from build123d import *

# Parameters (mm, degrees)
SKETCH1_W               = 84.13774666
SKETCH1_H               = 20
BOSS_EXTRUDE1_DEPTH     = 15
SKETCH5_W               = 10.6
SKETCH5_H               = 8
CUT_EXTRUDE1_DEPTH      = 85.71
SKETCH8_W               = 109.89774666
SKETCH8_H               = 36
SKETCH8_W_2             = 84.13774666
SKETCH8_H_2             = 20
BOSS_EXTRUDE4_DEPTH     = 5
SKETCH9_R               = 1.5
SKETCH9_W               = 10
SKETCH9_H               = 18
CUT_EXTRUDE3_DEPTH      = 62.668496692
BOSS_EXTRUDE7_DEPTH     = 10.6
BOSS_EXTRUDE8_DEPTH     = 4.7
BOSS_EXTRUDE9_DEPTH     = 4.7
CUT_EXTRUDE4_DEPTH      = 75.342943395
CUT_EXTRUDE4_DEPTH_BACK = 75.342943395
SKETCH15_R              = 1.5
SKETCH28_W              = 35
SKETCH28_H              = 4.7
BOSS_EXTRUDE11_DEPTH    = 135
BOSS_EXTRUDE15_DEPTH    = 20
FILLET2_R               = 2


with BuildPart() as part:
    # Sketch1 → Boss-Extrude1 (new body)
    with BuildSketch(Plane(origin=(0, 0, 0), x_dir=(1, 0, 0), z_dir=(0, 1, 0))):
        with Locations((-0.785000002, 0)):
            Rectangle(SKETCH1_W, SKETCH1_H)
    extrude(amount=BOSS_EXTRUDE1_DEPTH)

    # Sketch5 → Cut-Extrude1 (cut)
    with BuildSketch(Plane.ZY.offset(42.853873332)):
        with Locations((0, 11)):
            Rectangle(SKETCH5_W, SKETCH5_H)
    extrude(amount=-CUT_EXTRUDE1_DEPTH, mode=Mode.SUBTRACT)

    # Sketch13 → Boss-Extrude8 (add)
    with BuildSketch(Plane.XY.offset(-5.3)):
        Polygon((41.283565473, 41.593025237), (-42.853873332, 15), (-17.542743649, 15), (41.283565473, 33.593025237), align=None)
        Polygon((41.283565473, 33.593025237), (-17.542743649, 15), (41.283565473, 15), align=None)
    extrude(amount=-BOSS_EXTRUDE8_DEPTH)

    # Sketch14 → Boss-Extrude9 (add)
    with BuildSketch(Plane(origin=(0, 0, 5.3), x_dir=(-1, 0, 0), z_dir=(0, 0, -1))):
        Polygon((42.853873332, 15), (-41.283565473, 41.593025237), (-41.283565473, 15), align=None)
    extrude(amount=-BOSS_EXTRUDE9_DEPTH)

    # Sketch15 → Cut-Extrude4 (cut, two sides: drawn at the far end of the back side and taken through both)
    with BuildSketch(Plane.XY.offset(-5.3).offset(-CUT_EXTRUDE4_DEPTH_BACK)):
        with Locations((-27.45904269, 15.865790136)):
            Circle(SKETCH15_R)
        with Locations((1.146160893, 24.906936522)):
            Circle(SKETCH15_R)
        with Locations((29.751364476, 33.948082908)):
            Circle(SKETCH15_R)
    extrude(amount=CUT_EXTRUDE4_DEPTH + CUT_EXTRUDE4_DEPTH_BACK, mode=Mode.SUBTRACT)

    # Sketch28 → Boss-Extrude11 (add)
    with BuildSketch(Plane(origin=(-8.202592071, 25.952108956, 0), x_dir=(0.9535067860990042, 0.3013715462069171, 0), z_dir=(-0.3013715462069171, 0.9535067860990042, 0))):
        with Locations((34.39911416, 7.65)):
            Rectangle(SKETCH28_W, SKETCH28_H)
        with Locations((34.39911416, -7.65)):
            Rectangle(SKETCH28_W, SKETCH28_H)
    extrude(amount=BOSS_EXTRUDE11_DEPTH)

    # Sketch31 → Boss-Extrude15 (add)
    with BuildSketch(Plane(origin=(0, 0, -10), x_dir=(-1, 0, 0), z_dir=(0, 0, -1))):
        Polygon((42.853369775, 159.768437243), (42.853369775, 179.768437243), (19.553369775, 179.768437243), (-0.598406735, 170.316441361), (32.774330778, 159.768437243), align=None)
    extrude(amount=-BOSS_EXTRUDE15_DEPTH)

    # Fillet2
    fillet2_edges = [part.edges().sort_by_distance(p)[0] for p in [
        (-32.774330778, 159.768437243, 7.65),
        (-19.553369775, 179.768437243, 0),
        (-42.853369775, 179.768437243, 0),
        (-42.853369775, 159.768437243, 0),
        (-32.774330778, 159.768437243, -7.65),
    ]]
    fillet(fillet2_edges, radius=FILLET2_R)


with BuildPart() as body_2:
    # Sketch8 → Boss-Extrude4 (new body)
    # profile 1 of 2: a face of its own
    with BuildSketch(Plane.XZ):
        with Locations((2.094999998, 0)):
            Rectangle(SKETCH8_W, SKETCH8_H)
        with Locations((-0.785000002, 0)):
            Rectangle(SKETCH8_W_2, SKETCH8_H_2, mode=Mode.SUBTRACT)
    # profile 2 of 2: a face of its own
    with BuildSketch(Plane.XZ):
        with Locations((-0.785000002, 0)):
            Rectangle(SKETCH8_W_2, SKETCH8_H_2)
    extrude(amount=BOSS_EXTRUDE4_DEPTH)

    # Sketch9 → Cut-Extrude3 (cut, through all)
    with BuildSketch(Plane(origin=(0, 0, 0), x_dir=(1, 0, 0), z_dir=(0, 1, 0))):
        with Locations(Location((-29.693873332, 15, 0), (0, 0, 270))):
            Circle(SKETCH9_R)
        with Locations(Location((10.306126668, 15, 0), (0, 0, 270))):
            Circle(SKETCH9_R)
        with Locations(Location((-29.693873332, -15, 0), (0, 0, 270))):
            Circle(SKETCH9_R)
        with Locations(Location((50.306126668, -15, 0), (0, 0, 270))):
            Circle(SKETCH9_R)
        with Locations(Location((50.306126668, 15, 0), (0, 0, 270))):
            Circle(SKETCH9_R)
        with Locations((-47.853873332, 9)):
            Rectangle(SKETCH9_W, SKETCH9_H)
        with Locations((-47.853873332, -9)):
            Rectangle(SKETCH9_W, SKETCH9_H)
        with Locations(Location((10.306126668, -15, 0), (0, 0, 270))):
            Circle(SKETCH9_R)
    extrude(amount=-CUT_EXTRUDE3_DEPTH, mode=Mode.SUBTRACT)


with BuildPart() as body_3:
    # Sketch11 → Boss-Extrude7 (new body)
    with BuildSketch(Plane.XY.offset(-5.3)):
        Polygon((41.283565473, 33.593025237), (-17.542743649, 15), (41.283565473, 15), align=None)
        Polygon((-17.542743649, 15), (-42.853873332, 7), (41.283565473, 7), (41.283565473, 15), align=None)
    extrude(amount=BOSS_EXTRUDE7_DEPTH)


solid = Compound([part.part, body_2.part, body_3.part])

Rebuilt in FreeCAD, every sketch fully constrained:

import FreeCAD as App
import Part
import Sketcher

V = App.Vector
Q = App.Units.Quantity


def edges_at(feature, points):
    """Names of the edges that pass closest to the given points."""
    edges = feature.Shape.Edges
    near = lambda p: min(range(len(edges)), key=lambda i: edges[i].distToShape(Part.Vertex(*p))[0])
    return sorted({f"Edge{near(p) + 1}" for p in points})

doc = App.newDocument("Part")
body = doc.addObject("PartDesign::Body", "Body")

# Sketch on XZ plane
sketch1 = body.newObject("Sketcher::SketchObject", "Sketch")
sketch1.AttachmentSupport = (doc.getObject("XZ_Plane"), [""])
sketch1.MapMode = "FlatFace"
sketch1.addGeometry([
    Part.LineSegment(V(-43, -10, 0), V(-43, 10, 0)),
    Part.LineSegment(V(-43, 10, 0), V(41, 10, 0)),
    Part.LineSegment(V(41, 10, 0), V(41, -10, 0)),
    Part.LineSegment(V(41, -10, 0), V(-43, -10, 0)),
], False)
sketch1.addConstraint([
    Sketcher.Constraint("Coincident", 0, 2, 1, 1),
    Sketcher.Constraint("Coincident", 1, 2, 2, 1),
    Sketcher.Constraint("Coincident", 2, 2, 3, 1),
    Sketcher.Constraint("Coincident", 3, 2, 0, 1),
    Sketcher.Constraint("Vertical", 0),
    Sketcher.Constraint("Horizontal", 1),
    Sketcher.Constraint("Vertical", 2),
    Sketcher.Constraint("Horizontal", 3),
    Sketcher.Constraint("DistanceY", 0, 1, 0, 2, Q("20 mm")),
    Sketcher.Constraint("DistanceY", -1, 1, 0, 2, Q("10 mm")),
    Sketcher.Constraint("DistanceX", 1, 1, 1, 2, Q("84.137747 mm")),
    Sketcher.Constraint("DistanceX", 0, 2, -1, 1, Q("42.853873 mm")),
])
pad1 = body.newObject("PartDesign::Pad", "Pad")
pad1.Profile = sketch1
pad1.Length = 15
pad1.Reversed = True

# Sketch on YZ plane
sketch2 = body.newObject("Sketcher::SketchObject", "Sketch001")
sketch2.AttachmentSupport = (doc.getObject("YZ_Plane"), [""])
sketch2.MapMode = "FlatFace"
sketch2.AttachmentOffset = App.Placement(V(0, 0, -42.853873), App.Rotation())
sketch2.addGeometry([
    Part.LineSegment(V(15, -5, 0), V(7, -5, 0)),
    Part.LineSegment(V(7, -5, 0), V(7, 5, 0)),
    Part.LineSegment(V(7, 5, 0), V(15, 5, 0)),
    Part.LineSegment(V(15, 5, 0), V(15, -5, 0)),
], False)
sketch2.addConstraint([
    Sketcher.Constraint("Coincident", 0, 2, 1, 1),
    Sketcher.Constraint("Coincident", 1, 2, 2, 1),
    Sketcher.Constraint("Coincident", 2, 2, 3, 1),
    Sketcher.Constraint("Coincident", 3, 2, 0, 1),
    Sketcher.Constraint("Horizontal", 0),
    Sketcher.Constraint("Vertical", 1),
    Sketcher.Constraint("Horizontal", 2),
    Sketcher.Constraint("Vertical", 3),
    Sketcher.Constraint("DistanceX", 0, 2, 0, 1, Q("8 mm")),
    Sketcher.Constraint("DistanceY", 1, 1, 1, 2, Q("10.6 mm")),
    Sketcher.Constraint("DistanceX", -1, 1, 0, 2, Q("7 mm")),
    Sketcher.Constraint("DistanceY", 0, 2, -1, 1, Q("5.3 mm")),
])
pocket1 = body.newObject("PartDesign::Pocket", "Pocket")
pocket1.Profile = sketch2
pocket1.Length = 85.71
pocket1.Reversed = True

# Sketch on XY plane
sketch3 = body.newObject("Sketcher::SketchObject", "Sketch002")
sketch3.AttachmentSupport = (doc.getObject("XY_Plane"), [""])
sketch3.MapMode = "FlatFace"
sketch3.AttachmentOffset = App.Placement(V(0, 0, -5.3), App.Rotation())
sketch3.addGeometry([
    Part.LineSegment(V(41, 42, 0), V(-43, 15, 0)),
    Part.LineSegment(V(-43, 15, 0), V(41, 15, 0)),
    Part.LineSegment(V(41, 15, 0), V(41, 42, 0)),
], False)
sketch3.addConstraint([
    Sketcher.Constraint("Coincident", 0, 2, 1, 1),
    Sketcher.Constraint("Coincident", 1, 2, 2, 1),
    Sketcher.Constraint("Coincident", 2, 2, 0, 1),
    Sketcher.Constraint("Horizontal", 1),
    Sketcher.Constraint("Vertical", 2),
    Sketcher.Constraint("DistanceY", -1, 1, 0, 2, Q("15 mm")),
    Sketcher.Constraint("Angle", 0, Q("-162.46 deg")),
    Sketcher.Constraint("Distance", 0, Q("88.24 mm")),
    Sketcher.Constraint("DistanceX", 0, 2, -1, 1, Q("42.853873 mm")),
])
pad2 = body.newObject("PartDesign::Pad", "Pad001")
pad2.Profile = sketch3
pad2.Length = 4.7
pad2.Reversed = True

# Sketch on XY plane
sketch4 = body.newObject("Sketcher::SketchObject", "Sketch003")
sketch4.AttachmentSupport = (doc.getObject("XY_Plane"), [""])
sketch4.MapMode = "FlatFace"
sketch4.AttachmentOffset = App.Placement(V(0, 0, 5.3), App.Rotation())
sketch4.addGeometry([
    Part.LineSegment(V(-43, 15, 0), V(41, 42, 0)),
    Part.LineSegment(V(41, 42, 0), V(41, 15, 0)),
    Part.LineSegment(V(41, 15, 0), V(-43, 15, 0)),
], False)
sketch4.addConstraint([
    Sketcher.Constraint("Coincident", 0, 2, 1, 1),
    Sketcher.Constraint("Coincident", 1, 2, 2, 1),
    Sketcher.Constraint("Coincident", 2, 2, 0, 1),
    Sketcher.Constraint("Vertical", 1),
    Sketcher.Constraint("Horizontal", 2),
    Sketcher.Constraint("DistanceY", -1, 1, 1, 2, Q("15 mm")),
    Sketcher.Constraint("Angle", 0, Q("17.54 deg")),
    Sketcher.Constraint("Distance", 0, Q("88.24 mm")),
    Sketcher.Constraint("DistanceX", -1, 1, 0, 2, Q("41.283565 mm")),
])
pad3 = body.newObject("PartDesign::Pad", "Pad002")
pad3.Profile = sketch4
pad3.Length = 4.7

# Sketch on XY plane
sketch5 = body.newObject("Sketcher::SketchObject", "Sketch004")
sketch5.AttachmentSupport = (doc.getObject("XY_Plane"), [""])
sketch5.MapMode = "FlatFace"
sketch5.AttachmentOffset = App.Placement(V(0, 0, -5.3), App.Rotation())
sketch5.addGeometry([
    Part.Circle(V(-27.5, 15.9, 0), V(0, 0, 1), 1.5),
    Part.Circle(V(1.1, 24.9, 0), V(0, 0, 1), 1.5),
    Part.Circle(V(29.8, 33.9, 0), V(0, 0, 1), 1.5),
], False)
sketch5.addConstraint([
    Sketcher.Constraint("Equal", 0, 1),
    Sketcher.Constraint("Equal", 1, 2),
    Sketcher.Constraint("Diameter", 0, Q("3 mm")),
    Sketcher.Constraint("DistanceY", -1, 1, 0, 3, Q("15.86579 mm")),
    Sketcher.Constraint("DistanceX", -1, 1, 1, 3, Q("1.146161 mm")),
    Sketcher.Constraint("DistanceX", 0, 3, -1, 1, Q("27.459043 mm")),
    Sketcher.Constraint("DistanceY", -1, 1, 1, 3, Q("24.906937 mm")),
    Sketcher.Constraint("DistanceX", -1, 1, 2, 3, Q("29.751364 mm")),
    Sketcher.Constraint("DistanceY", -1, 1, 2, 3, Q("33.948083 mm")),
])
pocket2 = body.newObject("PartDesign::Pocket", "Pocket001")
pocket2.Profile = sketch5
pocket2.Type = "ThroughAll"
pocket2.Midplane = True

# Sketch on an angled plane
sketch6 = body.newObject("Sketcher::SketchObject", "Sketch005")
sketch6.Placement = App.Placement(V(-8.202592, 25.952109, 0), App.Rotation(V(0.953506786, 0.301371546, 0), V(0, 0, -1), V(-0.301371546, 0.953506786, 0), "ZXY"))
sketch6.addGeometry([
    Part.LineSegment(V(16.9, 10, 0), V(16.9, 5.3, 0)),  # 0
    Part.LineSegment(V(16.9, 5.3, 0), V(51.9, 5.3, 0)),  # 1
    Part.LineSegment(V(51.9, 5.3, 0), V(51.9, 10, 0)),  # 2
    Part.LineSegment(V(51.9, 10, 0), V(16.9, 10, 0)),  # 3
    Part.LineSegment(V(16.9, -5.3, 0), V(16.9, -10, 0)),  # 4
    Part.LineSegment(V(16.9, -10, 0), V(51.9, -10, 0)),  # 5
    Part.LineSegment(V(51.9, -10, 0), V(51.9, -5.3, 0)),  # 6
    Part.LineSegment(V(51.9, -5.3, 0), V(16.9, -5.3, 0)),  # 7
], False)
sketch6.addConstraint([
    Sketcher.Constraint("Coincident", 0, 2, 1, 1),
    Sketcher.Constraint("Coincident", 1, 2, 2, 1),
    Sketcher.Constraint("Coincident", 2, 2, 3, 1),
    Sketcher.Constraint("Coincident", 3, 2, 0, 1),
    Sketcher.Constraint("Coincident", 4, 2, 5, 1),
    Sketcher.Constraint("Coincident", 5, 2, 6, 1),
    Sketcher.Constraint("Coincident", 6, 2, 7, 1),
    Sketcher.Constraint("Coincident", 7, 2, 4, 1),
    Sketcher.Constraint("Vertical", 0),
    Sketcher.Constraint("Horizontal", 1),
    Sketcher.Constraint("Vertical", 2),
    Sketcher.Constraint("Horizontal", 3),
    Sketcher.Constraint("Vertical", 4),
    Sketcher.Constraint("Horizontal", 5),
    Sketcher.Constraint("Vertical", 6),
    Sketcher.Constraint("Horizontal", 7),
    Sketcher.Constraint("Symmetric", 3, 2, 4, 2, -1),
    Sketcher.Constraint("Symmetric", 1, 2, 6, 2, -1),
    Sketcher.Constraint("DistanceX", 1, 1, 1, 2, Q("35 mm")),
    Sketcher.Constraint("DistanceY", 0, 2, 0, 1, Q("4.7 mm")),
    Sketcher.Constraint("DistanceY", -1, 1, 2, 2, Q("10 mm")),
    Sketcher.Constraint("DistanceX", -1, 1, 0, 2, Q("16.899114 mm")),
])
pad4 = body.newObject("PartDesign::Pad", "Pad003")
pad4.Profile = sketch6
pad4.Length = 135

# Sketch on XY plane
sketch7 = body.newObject("Sketcher::SketchObject", "Sketch006")
sketch7.AttachmentSupport = (doc.getObject("XY_Plane"), [""])
sketch7.MapMode = "FlatFace"
sketch7.AttachmentOffset = App.Placement(V(0, 0, -10), App.Rotation())
sketch7.addGeometry([
    Part.LineSegment(V(-43, 160, 0), V(-43, 180, 0)),  # 0
    Part.LineSegment(V(-43, 180, 0), V(-20, 180, 0)),  # 1
    Part.LineSegment(V(-20, 180, 0), V(1, 170, 0)),  # 2
    Part.LineSegment(V(1, 170, 0), V(-33, 160, 0)),  # 3
    Part.LineSegment(V(-33, 160, 0), V(-43, 160, 0)),  # 4
], False)
sketch7.addConstraint([
    Sketcher.Constraint("Coincident", 0, 2, 1, 1),
    Sketcher.Constraint("Coincident", 1, 2, 2, 1),
    Sketcher.Constraint("Coincident", 2, 2, 3, 1),
    Sketcher.Constraint("Coincident", 3, 2, 4, 1),
    Sketcher.Constraint("Coincident", 4, 2, 0, 1),
    Sketcher.Constraint("Vertical", 0),
    Sketcher.Constraint("Horizontal", 1),
    Sketcher.Constraint("Horizontal", 4),
    Sketcher.Constraint("DistanceY", 0, 1, 0, 2, Q("20 mm")),
    Sketcher.Constraint("Distance", 3, Q("35 mm")),
    Sketcher.Constraint("DistanceX", 1, 1, 1, 2, Q("23.3 mm")),
    Sketcher.Constraint("Angle", 3, Q("-162.46 deg")),
    Sketcher.Constraint("DistanceX", 4, 2, 4, 1, Q("10.079039 mm")),
    Sketcher.Constraint("DistanceX", 0, 2, -1, 1, Q("42.85337 mm")),
    Sketcher.Constraint("DistanceY", -1, 1, 2, 2, Q("170.316441 mm")),
])
pad5 = body.newObject("PartDesign::Pad", "Pad004")
pad5.Profile = sketch7
pad5.Length = 20
doc.recompute()

fillet = body.newObject("PartDesign::Fillet", "Fillet")
fillet.Base = (pad5, edges_at(pad5, [
    (-32.774, 159.768, 7.65),
    (-19.553, 179.768, 0),
    (-42.853, 179.768, 0),
    (-42.853, 159.768, 0),
    (-32.774, 159.768, -7.65),
]))
fillet.Radius = 2
body2 = doc.addObject("PartDesign::Body", "Body001")

# Sketch on XZ plane
sketch8 = body2.newObject("Sketcher::SketchObject", "Sketch007")
sketch8.AttachmentSupport = (doc.getObject("XZ_Plane001"), [""])
sketch8.MapMode = "FlatFace"
sketch8.addGeometry([
    Part.LineSegment(V(-53, 18, 0), V(-53, -18, 0)),
    Part.LineSegment(V(-53, -18, 0), V(57, -18, 0)),
    Part.LineSegment(V(57, -18, 0), V(57, 18, 0)),
    Part.LineSegment(V(57, 18, 0), V(-53, 18, 0)),
], False)
sketch8.addConstraint([
    Sketcher.Constraint("Coincident", 0, 2, 1, 1),
    Sketcher.Constraint("Coincident", 1, 2, 2, 1),
    Sketcher.Constraint("Coincident", 2, 2, 3, 1),
    Sketcher.Constraint("Coincident", 3, 2, 0, 1),
    Sketcher.Constraint("Vertical", 0),
    Sketcher.Constraint("Horizontal", 1),
    Sketcher.Constraint("Vertical", 2),
    Sketcher.Constraint("Horizontal", 3),
    Sketcher.Constraint("DistanceY", 0, 2, 0, 1, Q("36 mm")),
    Sketcher.Constraint("DistanceY", 0, 2, -1, 1, Q("18 mm")),
    Sketcher.Constraint("DistanceX", 1, 1, 1, 2, Q("109.897747 mm")),
    Sketcher.Constraint("DistanceX", 0, 2, -1, 1, Q("52.853873 mm")),
])
pad6 = body2.newObject("PartDesign::Pad", "Pad005")
pad6.Profile = sketch8
pad6.Length = 5

# Sketch on XZ plane
sketch9 = body2.newObject("Sketcher::SketchObject", "Sketch008")
sketch9.AttachmentSupport = (doc.getObject("XZ_Plane001"), [""])
sketch9.MapMode = "FlatFace"
sketch9.addGeometry([
    Part.Circle(V(-29.7, -15, 0), V(0, 0, 1), 1.5),  # 0
    Part.Circle(V(10.3, -15, 0), V(0, 0, 1), 1.5),  # 1
    Part.Circle(V(-29.7, 15, 0), V(0, 0, 1), 1.5),  # 2
    Part.Circle(V(50.3, 15, 0), V(0, 0, 1), 1.5),  # 3
    Part.Circle(V(50.3, -15, 0), V(0, 0, 1), 1.5),  # 4
    Part.LineSegment(V(-52.9, -18, 0), V(-52.9, 18, 0)),  # 5
    Part.LineSegment(V(-52.9, 18, 0), V(-42.9, 18, 0)),  # 6
    Part.LineSegment(V(-42.9, 18, 0), V(-42.9, -18, 0)),  # 7
    Part.LineSegment(V(-42.9, -18, 0), V(-52.9, -18, 0)),  # 8
    Part.Circle(V(10.3, 15, 0), V(0, 0, 1), 1.5),  # 9
], False)
sketch9.addConstraint([
    Sketcher.Constraint("Coincident", 5, 2, 6, 1),
    Sketcher.Constraint("Coincident", 6, 2, 7, 1),
    Sketcher.Constraint("Coincident", 7, 2, 8, 1),
    Sketcher.Constraint("Coincident", 8, 2, 5, 1),
    Sketcher.Constraint("Vertical", 5),
    Sketcher.Constraint("Horizontal", 6),
    Sketcher.Constraint("Vertical", 7),
    Sketcher.Constraint("Horizontal", 8),
    Sketcher.Constraint("Equal", 0, 1),
    Sketcher.Constraint("Equal", 1, 2),
    Sketcher.Constraint("Equal", 2, 3),
    Sketcher.Constraint("Equal", 3, 4),
    Sketcher.Constraint("Equal", 4, 9),
    Sketcher.Constraint("Symmetric", 0, 3, 2, 3, -1),
    Sketcher.Constraint("Symmetric", 3, 3, 4, 3, -1),
    Sketcher.Constraint("Symmetric", 1, 3, 9, 3, -1),
    Sketcher.Constraint("Horizontal", 0, 3, 1, 3),
    Sketcher.Constraint("Horizontal", 2, 3, 3, 3),
    Sketcher.Constraint("Diameter", 0, Q("3 mm")),
    Sketcher.Constraint("DistanceX", 6, 1, 6, 2, Q("10 mm")),
    Sketcher.Constraint("DistanceY", 5, 1, 5, 2, Q("36 mm")),
    Sketcher.Constraint("DistanceY", 0, 3, -1, 1, Q("15 mm")),
    Sketcher.Constraint("DistanceY", -1, 1, 5, 2, Q("18 mm")),
    Sketcher.Constraint("DistanceX", 0, 3, 1, 3, Q("40 mm")),
    Sketcher.Constraint("DistanceX", 1, 3, 3, 3, Q("40 mm")),
    Sketcher.Constraint("DistanceX", 5, 2, 2, 3, Q("23.16 mm")),
    Sketcher.Constraint("DistanceX", 0, 3, -1, 1, Q("29.693873 mm")),
])
pocket3 = body2.newObject("PartDesign::Pocket", "Pocket002")
pocket3.Profile = sketch9
pocket3.Type = "ThroughAll"
pocket3.Reversed = True
body3 = doc.addObject("PartDesign::Body", "Body002")

# Sketch on XY plane
sketch10 = body3.newObject("Sketcher::SketchObject", "Sketch009")
sketch10.AttachmentSupport = (doc.getObject("XY_Plane002"), [""])
sketch10.MapMode = "FlatFace"
sketch10.AttachmentOffset = App.Placement(V(0, 0, -5.3), App.Rotation())
sketch10.addGeometry([
    Part.LineSegment(V(41, 34, 0), V(-18, 15, 0)),
    Part.LineSegment(V(-18, 15, 0), V(-43, 7, 0)),
    Part.LineSegment(V(-43, 7, 0), V(41, 7, 0)),
    Part.LineSegment(V(41, 7, 0), V(41, 34, 0)),
], False)
sketch10.addConstraint([
    Sketcher.Constraint("Coincident", 0, 2, 1, 1),
    Sketcher.Constraint("Coincident", 1, 2, 2, 1),
    Sketcher.Constraint("Coincident", 2, 2, 3, 1),
    Sketcher.Constraint("Coincident", 3, 2, 0, 1),
    Sketcher.Constraint("Horizontal", 2),
    Sketcher.Constraint("Vertical", 3),
    Sketcher.Constraint("Parallel", 0, 1),
    Sketcher.Constraint("DistanceY", -1, 1, 0, 2, Q("15 mm")),
    Sketcher.Constraint("DistanceY", -1, 1, 1, 2, Q("7 mm")),
    Sketcher.Constraint("Angle", 0, Q("-162.46 deg")),
    Sketcher.Constraint("DistanceX", 2, 1, 2, 2, Q("84.137439 mm")),
    Sketcher.Constraint("DistanceX", 0, 2, -1, 1, Q("17.542744 mm")),
])
pad7 = body3.newObject("PartDesign::Pad", "Pad006")
pad7.Profile = sketch10
pad7.Length = 10.6

doc.recompute()
